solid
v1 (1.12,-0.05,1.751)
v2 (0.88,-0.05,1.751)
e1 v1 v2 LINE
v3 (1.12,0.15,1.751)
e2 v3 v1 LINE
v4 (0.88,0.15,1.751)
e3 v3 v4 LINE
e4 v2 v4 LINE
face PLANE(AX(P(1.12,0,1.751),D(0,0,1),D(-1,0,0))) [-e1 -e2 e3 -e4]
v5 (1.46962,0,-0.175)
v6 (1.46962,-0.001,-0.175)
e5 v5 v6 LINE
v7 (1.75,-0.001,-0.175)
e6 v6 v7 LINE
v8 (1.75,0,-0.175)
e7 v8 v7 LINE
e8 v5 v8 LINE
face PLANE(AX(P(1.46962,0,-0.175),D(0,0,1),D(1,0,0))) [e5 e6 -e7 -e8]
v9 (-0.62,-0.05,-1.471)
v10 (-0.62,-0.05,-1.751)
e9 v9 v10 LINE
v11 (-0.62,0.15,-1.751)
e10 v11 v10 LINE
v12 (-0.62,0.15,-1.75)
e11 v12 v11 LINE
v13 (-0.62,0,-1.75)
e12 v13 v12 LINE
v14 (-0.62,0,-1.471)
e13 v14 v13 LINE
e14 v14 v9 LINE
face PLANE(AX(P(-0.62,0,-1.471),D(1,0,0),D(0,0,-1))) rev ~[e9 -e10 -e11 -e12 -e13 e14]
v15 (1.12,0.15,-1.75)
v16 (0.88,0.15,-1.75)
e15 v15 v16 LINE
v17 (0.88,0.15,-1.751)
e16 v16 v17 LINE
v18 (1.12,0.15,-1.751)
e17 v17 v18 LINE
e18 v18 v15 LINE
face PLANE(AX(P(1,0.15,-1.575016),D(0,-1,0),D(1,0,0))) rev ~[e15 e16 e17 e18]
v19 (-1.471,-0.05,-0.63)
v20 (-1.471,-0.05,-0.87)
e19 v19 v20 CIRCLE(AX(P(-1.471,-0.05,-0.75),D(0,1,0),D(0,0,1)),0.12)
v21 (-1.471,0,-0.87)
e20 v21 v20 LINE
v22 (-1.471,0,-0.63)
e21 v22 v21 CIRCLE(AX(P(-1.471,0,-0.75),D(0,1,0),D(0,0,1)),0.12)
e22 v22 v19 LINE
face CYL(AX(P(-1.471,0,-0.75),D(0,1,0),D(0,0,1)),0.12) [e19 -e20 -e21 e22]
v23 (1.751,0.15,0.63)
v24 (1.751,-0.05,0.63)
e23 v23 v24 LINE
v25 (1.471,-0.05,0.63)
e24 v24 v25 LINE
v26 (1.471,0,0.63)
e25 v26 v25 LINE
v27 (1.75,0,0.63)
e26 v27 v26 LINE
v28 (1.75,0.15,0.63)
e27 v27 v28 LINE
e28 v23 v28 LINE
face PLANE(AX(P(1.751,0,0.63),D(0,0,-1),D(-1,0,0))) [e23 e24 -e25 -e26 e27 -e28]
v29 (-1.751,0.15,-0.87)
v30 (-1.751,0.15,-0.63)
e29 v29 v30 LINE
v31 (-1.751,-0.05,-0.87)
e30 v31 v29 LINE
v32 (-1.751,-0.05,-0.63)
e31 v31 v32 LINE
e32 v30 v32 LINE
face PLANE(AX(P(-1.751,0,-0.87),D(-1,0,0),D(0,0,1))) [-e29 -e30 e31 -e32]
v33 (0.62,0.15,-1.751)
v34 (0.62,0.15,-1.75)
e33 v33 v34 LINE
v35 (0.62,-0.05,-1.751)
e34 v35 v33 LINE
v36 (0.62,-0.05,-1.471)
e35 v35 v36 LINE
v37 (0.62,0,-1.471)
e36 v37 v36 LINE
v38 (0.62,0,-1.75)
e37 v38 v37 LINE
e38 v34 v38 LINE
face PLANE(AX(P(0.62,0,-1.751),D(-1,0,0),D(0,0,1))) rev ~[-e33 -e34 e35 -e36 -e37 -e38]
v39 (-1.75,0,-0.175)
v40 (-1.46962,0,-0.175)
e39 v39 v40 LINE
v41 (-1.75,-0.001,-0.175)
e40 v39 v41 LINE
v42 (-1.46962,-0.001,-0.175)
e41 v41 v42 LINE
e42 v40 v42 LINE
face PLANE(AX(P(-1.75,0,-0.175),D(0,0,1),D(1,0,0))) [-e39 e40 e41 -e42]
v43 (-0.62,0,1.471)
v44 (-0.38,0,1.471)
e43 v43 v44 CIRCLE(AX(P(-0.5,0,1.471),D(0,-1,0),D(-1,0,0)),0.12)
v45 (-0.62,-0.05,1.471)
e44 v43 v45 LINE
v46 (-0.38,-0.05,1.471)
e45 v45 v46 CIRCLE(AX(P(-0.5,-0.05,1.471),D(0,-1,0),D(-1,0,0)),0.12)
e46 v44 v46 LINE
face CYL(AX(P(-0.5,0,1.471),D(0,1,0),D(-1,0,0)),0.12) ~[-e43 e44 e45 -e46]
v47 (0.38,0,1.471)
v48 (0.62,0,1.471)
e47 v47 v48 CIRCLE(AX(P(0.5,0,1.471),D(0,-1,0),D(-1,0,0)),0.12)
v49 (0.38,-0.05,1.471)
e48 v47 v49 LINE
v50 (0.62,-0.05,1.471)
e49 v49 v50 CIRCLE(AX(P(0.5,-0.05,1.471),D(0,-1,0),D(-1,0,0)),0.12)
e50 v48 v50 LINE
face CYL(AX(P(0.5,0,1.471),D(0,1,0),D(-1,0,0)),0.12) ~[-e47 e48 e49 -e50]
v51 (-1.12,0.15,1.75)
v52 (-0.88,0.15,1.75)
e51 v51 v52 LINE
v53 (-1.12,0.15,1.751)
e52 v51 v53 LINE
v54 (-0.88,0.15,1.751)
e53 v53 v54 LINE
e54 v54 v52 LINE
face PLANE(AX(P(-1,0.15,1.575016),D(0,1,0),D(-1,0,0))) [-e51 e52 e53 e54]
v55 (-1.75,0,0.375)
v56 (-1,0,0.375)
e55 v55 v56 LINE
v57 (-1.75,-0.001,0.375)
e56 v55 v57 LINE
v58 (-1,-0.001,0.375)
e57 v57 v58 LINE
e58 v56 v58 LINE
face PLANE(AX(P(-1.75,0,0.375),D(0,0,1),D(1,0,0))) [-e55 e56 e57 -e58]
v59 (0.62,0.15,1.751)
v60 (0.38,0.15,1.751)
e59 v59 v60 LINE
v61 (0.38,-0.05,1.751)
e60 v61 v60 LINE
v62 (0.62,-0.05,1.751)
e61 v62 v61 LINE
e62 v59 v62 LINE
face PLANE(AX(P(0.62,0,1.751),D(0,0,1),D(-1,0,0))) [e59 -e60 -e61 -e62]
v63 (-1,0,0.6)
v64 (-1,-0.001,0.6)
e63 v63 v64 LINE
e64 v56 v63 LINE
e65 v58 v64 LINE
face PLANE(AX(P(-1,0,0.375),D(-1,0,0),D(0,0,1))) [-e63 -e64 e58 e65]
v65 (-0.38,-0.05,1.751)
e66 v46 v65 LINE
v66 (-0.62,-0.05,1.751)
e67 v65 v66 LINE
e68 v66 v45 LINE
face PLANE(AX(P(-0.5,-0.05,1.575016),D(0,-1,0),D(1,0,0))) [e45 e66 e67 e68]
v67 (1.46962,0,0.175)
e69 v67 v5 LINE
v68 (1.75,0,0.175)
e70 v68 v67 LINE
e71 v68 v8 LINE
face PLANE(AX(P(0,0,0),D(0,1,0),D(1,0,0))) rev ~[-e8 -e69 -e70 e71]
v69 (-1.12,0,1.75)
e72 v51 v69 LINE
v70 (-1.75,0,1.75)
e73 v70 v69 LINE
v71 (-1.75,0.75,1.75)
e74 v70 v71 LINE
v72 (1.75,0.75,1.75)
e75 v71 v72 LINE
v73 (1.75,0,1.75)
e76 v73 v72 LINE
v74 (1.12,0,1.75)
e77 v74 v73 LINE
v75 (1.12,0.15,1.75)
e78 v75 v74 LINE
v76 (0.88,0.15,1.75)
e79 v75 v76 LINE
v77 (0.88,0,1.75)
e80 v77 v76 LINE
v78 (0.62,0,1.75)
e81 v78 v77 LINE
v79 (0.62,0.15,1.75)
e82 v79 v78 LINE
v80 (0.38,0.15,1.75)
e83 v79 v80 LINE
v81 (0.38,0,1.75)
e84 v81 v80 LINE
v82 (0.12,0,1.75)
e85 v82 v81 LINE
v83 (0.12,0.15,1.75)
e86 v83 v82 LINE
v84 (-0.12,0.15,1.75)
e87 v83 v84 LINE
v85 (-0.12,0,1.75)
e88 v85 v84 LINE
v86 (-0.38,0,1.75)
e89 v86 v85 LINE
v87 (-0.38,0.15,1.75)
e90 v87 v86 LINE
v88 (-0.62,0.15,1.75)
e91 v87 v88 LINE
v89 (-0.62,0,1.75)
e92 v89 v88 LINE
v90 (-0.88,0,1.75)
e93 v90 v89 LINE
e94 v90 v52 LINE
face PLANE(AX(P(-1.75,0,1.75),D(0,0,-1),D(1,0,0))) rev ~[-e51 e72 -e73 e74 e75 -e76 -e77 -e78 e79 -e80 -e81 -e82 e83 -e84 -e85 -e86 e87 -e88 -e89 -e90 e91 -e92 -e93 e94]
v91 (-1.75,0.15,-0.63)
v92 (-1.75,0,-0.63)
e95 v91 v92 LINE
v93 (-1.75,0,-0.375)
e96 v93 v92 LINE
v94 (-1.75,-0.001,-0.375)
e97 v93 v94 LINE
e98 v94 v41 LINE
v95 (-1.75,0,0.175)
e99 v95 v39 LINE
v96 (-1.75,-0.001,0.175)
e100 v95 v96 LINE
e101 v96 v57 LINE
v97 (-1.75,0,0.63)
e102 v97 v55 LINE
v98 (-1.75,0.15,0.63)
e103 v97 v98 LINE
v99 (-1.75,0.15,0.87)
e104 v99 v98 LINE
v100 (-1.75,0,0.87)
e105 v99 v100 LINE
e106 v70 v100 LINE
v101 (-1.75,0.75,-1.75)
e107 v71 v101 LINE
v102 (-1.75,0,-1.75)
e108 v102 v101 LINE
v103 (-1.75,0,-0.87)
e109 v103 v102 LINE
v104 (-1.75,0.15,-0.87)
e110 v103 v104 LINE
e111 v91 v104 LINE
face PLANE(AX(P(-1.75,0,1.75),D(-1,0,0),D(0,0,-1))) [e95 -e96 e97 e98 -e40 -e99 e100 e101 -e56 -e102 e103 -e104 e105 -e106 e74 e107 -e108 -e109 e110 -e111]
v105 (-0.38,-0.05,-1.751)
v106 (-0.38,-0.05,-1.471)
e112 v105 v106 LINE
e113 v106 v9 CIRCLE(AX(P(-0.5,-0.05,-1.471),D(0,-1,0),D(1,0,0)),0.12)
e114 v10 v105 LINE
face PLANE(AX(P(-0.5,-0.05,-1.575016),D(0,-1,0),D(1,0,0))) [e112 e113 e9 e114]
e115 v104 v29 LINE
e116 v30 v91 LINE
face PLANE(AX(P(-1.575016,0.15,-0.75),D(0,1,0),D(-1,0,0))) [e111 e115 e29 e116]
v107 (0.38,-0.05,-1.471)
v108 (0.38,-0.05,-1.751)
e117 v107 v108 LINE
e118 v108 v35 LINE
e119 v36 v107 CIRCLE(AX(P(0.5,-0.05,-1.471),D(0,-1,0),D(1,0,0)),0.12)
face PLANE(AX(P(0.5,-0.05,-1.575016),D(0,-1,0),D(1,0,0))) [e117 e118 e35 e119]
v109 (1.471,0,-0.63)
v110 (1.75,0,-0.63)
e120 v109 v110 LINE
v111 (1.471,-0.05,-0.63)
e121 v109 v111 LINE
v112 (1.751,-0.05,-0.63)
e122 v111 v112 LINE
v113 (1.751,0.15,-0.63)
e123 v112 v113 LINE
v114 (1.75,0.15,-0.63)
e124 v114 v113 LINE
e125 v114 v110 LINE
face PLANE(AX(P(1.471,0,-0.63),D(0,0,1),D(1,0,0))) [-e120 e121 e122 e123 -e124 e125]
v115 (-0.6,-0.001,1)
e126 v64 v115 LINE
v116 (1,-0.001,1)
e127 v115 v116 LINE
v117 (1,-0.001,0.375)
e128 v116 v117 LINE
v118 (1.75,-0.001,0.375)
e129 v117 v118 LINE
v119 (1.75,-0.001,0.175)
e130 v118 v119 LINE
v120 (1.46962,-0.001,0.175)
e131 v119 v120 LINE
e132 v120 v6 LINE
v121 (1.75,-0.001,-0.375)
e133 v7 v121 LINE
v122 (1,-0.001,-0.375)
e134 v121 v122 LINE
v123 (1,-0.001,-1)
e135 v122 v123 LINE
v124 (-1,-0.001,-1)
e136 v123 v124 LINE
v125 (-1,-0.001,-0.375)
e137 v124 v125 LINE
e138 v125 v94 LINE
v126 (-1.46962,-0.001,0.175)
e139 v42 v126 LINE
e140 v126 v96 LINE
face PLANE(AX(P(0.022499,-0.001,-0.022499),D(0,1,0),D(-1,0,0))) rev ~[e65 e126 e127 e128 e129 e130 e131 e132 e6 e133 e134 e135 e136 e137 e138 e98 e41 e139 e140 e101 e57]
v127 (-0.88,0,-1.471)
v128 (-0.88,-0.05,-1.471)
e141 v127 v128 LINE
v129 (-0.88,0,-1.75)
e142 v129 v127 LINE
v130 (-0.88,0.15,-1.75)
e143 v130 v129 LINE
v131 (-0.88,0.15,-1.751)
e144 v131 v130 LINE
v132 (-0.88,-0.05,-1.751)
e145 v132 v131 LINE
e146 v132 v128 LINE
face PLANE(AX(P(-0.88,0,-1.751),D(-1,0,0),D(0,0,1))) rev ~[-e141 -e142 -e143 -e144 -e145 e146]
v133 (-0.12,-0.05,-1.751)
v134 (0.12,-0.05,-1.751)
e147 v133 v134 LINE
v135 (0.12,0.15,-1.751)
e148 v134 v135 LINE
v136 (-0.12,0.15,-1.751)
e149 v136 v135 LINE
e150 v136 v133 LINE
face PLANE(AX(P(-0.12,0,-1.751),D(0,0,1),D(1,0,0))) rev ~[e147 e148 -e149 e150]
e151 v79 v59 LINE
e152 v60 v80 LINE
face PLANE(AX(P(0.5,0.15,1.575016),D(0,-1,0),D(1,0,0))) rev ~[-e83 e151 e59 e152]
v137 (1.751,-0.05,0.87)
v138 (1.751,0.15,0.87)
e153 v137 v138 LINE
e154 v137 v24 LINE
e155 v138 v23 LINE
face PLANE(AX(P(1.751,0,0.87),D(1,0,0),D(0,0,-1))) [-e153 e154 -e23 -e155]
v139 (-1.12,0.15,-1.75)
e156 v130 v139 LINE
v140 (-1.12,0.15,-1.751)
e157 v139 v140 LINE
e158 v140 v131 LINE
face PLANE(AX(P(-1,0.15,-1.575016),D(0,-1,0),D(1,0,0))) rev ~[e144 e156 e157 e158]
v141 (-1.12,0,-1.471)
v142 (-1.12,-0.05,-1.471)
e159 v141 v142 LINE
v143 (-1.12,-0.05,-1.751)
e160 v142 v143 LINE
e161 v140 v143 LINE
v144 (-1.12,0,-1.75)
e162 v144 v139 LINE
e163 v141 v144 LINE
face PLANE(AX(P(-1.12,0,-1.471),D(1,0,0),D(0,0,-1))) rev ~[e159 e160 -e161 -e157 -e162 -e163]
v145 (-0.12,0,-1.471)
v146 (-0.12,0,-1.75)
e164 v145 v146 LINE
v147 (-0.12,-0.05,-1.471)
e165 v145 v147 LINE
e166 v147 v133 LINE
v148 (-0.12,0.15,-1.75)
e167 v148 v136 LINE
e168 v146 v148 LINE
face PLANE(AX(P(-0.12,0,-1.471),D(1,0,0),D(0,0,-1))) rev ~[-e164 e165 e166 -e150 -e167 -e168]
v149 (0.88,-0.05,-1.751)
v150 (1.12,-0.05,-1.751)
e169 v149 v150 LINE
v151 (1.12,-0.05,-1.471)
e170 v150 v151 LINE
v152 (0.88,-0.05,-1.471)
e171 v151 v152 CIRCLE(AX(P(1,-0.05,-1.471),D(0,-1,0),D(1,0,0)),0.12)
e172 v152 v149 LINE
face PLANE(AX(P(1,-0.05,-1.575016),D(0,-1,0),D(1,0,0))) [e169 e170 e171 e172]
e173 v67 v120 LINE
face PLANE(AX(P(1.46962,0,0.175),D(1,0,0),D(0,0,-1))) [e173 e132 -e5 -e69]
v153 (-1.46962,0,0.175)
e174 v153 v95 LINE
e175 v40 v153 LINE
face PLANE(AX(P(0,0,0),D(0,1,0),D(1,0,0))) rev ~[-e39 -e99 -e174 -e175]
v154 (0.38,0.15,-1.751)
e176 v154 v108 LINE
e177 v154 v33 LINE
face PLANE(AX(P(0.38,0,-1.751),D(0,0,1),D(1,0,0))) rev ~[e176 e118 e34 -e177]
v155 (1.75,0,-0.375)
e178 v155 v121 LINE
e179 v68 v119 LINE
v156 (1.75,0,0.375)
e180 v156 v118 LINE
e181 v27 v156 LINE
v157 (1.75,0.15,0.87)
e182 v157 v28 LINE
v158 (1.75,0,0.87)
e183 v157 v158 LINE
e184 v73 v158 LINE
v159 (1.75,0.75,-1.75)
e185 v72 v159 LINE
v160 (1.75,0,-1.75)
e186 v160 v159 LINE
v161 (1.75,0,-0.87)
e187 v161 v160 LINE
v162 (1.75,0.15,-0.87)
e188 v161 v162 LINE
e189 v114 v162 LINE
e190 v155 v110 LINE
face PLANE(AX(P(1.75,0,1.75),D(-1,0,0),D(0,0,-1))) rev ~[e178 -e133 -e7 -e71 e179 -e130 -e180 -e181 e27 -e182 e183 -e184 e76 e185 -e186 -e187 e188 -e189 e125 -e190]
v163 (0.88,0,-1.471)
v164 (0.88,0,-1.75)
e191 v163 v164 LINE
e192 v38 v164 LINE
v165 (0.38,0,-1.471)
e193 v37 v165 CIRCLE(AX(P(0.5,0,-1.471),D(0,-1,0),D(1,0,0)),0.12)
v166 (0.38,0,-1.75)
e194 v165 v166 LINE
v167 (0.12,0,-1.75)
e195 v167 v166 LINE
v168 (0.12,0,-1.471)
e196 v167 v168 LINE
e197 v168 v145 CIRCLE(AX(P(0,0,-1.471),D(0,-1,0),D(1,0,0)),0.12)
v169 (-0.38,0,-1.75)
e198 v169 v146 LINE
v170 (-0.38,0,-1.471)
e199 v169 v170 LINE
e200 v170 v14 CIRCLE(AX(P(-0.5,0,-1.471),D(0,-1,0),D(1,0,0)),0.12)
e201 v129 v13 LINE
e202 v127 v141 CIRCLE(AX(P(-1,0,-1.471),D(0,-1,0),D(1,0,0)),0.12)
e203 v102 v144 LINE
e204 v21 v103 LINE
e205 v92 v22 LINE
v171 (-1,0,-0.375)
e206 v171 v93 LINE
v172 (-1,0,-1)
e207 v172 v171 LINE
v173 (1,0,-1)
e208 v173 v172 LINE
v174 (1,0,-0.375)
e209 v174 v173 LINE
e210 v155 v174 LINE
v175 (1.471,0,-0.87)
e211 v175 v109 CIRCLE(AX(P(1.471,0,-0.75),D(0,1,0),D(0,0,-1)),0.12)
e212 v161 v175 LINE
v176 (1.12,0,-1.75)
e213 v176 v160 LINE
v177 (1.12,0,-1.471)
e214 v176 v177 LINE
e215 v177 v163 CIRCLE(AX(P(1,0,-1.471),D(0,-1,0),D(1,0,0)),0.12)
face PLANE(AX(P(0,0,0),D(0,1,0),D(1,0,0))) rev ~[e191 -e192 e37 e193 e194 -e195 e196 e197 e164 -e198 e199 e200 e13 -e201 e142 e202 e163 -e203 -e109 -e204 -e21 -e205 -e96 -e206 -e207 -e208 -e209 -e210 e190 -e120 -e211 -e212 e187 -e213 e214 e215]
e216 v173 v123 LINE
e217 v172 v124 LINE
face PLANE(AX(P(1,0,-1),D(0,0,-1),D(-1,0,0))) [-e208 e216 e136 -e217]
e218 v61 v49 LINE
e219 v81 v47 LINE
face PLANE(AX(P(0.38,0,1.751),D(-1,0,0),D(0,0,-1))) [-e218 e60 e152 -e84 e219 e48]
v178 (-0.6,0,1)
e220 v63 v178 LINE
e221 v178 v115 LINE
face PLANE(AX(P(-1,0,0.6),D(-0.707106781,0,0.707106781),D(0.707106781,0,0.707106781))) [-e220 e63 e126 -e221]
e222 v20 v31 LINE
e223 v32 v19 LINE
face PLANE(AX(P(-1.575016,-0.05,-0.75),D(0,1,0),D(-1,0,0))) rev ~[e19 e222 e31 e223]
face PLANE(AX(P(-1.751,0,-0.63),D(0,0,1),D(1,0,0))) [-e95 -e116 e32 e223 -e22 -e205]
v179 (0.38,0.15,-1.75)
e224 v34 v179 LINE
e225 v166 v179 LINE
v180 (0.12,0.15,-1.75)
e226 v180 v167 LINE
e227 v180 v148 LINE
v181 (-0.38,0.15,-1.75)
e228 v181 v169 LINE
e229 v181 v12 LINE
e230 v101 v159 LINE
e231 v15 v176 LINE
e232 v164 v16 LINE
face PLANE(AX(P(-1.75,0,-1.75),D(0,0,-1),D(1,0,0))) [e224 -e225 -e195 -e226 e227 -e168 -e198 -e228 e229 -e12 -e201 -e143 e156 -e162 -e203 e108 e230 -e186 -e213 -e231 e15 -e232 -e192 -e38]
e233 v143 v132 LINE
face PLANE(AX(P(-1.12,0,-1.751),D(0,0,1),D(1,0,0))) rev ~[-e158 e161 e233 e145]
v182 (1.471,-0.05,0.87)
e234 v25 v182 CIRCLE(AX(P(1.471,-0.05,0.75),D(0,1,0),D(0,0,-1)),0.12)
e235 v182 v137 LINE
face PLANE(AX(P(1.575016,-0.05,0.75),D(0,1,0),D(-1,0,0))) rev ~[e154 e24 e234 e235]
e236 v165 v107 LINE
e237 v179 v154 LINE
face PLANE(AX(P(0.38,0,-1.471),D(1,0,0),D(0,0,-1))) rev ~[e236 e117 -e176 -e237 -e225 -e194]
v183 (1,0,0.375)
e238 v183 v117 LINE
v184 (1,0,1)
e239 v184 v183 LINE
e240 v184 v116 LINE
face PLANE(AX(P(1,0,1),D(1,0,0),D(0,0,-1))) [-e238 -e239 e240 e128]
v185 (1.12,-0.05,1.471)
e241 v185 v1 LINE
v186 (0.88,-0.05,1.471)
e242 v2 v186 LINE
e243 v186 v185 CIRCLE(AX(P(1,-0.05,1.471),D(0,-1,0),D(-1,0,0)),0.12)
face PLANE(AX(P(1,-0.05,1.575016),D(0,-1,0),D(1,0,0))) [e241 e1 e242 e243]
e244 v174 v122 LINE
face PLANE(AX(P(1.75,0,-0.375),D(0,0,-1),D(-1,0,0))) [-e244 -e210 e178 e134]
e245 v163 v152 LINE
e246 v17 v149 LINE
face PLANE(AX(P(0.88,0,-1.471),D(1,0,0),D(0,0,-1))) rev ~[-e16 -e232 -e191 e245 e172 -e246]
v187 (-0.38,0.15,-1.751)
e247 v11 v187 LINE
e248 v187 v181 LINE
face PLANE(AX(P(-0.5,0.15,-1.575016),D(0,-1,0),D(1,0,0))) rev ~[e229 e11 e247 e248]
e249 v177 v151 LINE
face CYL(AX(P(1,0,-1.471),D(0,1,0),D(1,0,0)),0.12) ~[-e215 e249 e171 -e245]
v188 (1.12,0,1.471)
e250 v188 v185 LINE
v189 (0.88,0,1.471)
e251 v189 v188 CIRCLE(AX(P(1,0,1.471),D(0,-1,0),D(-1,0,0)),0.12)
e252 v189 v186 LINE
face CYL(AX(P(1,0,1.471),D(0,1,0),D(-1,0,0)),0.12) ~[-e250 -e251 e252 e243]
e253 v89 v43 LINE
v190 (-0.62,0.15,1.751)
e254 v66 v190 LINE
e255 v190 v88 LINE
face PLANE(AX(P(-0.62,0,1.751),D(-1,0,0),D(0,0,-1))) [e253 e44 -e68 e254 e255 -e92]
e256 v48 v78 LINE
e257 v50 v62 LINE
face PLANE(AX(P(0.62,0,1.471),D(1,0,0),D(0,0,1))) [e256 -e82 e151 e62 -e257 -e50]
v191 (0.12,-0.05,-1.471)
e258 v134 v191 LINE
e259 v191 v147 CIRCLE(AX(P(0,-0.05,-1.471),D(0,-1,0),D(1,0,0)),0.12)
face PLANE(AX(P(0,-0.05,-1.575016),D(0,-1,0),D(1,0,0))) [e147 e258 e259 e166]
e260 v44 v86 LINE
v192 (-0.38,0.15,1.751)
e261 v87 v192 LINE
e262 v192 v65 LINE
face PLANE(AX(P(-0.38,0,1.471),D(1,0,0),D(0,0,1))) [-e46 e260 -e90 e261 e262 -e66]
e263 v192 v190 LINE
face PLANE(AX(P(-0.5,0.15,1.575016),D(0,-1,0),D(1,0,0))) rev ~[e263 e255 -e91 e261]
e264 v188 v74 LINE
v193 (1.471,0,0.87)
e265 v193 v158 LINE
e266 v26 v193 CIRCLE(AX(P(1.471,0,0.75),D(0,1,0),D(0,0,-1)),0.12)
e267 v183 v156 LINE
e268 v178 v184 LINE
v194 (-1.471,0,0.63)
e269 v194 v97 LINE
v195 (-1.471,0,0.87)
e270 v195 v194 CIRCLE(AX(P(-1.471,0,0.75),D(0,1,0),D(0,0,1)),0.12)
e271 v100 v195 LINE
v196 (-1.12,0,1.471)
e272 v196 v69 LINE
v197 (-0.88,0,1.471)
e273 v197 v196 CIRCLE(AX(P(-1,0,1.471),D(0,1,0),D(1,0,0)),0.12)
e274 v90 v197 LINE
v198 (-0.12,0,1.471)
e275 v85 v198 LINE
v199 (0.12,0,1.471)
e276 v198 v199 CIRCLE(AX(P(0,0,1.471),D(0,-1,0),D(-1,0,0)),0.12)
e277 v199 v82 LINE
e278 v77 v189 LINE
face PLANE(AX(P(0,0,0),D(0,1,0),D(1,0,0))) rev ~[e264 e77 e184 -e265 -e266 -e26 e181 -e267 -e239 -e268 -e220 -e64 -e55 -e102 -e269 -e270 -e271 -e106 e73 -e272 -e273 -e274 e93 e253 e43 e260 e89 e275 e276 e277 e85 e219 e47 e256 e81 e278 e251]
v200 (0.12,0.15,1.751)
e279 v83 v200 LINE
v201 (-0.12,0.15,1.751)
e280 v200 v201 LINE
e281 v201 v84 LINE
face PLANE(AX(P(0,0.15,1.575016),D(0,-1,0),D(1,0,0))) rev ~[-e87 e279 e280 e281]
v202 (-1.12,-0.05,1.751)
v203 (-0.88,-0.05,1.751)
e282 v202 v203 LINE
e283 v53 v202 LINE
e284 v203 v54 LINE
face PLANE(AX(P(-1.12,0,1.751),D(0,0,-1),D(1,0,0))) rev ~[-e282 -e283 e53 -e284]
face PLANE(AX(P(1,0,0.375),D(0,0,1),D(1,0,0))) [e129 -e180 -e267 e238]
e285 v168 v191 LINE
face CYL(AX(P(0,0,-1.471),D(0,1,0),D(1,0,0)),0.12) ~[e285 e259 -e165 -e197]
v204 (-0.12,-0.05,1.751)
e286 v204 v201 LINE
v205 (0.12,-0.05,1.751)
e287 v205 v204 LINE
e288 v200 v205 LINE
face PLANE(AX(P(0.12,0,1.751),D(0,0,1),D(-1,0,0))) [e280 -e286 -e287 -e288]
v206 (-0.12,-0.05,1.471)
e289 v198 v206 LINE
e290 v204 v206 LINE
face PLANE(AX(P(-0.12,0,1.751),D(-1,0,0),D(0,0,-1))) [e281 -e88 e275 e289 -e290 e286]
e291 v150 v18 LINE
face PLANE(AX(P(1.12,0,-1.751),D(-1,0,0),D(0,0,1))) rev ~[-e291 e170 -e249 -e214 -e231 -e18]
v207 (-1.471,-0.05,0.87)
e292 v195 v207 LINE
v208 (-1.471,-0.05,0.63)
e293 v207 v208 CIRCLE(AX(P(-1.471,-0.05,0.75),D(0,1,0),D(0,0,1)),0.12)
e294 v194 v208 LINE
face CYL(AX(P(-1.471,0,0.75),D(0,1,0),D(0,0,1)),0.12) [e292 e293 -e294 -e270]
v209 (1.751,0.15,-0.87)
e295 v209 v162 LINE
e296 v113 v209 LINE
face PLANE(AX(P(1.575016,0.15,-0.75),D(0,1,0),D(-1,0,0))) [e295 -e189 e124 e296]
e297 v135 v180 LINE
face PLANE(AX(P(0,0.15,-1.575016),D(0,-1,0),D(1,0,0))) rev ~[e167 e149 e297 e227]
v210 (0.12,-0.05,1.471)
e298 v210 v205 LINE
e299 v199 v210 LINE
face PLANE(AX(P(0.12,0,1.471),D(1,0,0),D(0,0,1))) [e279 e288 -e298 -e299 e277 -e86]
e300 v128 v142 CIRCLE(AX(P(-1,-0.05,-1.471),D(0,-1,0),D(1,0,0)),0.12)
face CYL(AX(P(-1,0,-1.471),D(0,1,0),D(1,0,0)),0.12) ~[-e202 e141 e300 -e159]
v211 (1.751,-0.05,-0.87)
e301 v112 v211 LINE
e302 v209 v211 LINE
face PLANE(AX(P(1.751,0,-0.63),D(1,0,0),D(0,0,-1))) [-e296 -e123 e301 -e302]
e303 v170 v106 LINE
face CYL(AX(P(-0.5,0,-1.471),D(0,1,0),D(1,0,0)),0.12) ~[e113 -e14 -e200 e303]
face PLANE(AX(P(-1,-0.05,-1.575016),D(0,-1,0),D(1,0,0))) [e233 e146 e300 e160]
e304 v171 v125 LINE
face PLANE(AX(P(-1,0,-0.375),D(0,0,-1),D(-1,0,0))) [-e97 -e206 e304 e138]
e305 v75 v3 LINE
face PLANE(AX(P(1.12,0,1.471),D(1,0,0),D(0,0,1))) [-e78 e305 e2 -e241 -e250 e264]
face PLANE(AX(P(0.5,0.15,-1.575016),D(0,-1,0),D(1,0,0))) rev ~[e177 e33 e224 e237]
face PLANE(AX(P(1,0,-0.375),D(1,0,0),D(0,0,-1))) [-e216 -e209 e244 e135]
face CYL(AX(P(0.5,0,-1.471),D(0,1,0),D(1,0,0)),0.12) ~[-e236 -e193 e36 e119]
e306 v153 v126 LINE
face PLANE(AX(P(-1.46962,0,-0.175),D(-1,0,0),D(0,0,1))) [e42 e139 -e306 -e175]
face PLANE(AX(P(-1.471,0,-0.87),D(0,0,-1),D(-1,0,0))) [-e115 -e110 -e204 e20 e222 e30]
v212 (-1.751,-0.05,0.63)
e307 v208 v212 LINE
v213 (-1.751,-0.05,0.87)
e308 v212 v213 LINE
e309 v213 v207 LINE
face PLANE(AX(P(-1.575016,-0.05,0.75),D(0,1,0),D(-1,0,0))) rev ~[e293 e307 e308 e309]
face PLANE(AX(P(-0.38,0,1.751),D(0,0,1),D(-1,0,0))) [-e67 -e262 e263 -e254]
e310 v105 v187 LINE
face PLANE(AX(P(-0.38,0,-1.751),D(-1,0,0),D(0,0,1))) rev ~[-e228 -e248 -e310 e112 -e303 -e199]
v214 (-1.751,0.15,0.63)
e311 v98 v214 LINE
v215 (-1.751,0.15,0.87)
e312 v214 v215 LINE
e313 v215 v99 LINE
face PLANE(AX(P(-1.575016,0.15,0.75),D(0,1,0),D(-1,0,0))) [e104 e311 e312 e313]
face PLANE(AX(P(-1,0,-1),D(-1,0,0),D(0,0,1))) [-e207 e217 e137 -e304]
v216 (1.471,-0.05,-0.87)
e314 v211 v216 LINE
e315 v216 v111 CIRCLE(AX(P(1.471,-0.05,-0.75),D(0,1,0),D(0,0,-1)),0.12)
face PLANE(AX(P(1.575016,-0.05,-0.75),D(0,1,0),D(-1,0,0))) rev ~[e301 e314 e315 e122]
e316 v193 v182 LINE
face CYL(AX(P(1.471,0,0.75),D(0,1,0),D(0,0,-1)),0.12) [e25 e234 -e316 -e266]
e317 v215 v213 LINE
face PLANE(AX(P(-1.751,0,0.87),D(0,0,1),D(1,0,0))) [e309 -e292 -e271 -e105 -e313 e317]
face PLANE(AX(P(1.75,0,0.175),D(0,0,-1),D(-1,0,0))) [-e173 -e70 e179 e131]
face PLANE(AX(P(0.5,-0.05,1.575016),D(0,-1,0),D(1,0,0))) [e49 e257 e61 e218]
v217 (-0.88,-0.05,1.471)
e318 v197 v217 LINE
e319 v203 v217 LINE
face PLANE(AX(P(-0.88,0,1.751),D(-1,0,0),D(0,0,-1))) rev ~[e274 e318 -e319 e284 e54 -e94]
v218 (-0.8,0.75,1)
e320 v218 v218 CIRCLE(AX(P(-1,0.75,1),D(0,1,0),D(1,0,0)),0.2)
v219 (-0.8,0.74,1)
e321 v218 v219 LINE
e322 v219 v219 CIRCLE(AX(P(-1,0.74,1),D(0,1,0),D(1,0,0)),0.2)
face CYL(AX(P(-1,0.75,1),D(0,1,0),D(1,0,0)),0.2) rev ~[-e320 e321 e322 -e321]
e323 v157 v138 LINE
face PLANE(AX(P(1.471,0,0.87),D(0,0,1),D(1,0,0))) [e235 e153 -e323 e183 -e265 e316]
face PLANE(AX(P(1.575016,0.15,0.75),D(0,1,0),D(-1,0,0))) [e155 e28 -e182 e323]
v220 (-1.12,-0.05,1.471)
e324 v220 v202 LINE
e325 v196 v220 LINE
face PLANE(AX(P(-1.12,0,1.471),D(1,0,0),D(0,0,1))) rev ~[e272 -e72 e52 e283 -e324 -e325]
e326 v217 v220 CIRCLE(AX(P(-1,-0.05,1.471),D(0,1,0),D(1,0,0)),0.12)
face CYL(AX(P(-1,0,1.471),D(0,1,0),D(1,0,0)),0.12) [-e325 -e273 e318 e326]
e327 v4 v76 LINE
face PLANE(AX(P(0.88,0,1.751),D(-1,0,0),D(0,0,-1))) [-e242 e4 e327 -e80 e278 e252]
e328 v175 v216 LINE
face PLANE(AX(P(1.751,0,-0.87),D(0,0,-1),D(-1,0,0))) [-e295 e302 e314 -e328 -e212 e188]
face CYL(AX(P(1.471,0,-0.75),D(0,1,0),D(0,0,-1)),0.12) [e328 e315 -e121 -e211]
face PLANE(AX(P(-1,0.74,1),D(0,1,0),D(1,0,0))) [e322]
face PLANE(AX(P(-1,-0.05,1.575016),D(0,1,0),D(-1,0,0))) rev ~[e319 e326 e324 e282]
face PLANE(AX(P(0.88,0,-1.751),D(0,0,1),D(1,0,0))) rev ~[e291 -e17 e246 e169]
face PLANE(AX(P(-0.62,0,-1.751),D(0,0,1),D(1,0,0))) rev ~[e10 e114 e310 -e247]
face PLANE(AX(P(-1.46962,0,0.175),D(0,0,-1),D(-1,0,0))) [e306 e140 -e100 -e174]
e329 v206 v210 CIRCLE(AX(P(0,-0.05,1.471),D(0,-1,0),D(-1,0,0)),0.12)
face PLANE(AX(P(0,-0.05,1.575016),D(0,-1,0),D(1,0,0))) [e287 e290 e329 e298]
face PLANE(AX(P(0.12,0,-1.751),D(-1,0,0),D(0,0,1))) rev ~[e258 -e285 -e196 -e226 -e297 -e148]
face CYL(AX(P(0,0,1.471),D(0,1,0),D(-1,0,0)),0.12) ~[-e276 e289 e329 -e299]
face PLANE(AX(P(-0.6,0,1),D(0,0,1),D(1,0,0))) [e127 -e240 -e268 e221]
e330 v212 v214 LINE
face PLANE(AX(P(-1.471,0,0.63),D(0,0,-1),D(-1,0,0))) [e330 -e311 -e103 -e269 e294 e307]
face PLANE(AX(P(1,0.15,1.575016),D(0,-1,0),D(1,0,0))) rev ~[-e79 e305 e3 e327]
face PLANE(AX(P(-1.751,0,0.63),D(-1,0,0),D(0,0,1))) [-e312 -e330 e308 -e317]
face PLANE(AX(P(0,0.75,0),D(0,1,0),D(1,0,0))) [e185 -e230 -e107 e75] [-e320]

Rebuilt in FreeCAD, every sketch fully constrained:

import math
import FreeCAD as App
import Part
import Sketcher
Q = App.Units.Quantity

doc = App.newDocument("Part")
body = doc.addObject("PartDesign::Body", "Body")

# Sketch on XZ plane
sketch1 = doc.addObject("Sketcher::SketchObject", "Sketch")
body.addObject(sketch1)
sketch1.AttachmentSupport = (doc.XZ_Plane, [""])
sketch1.MapMode = "FlatFace"
sketch1.addGeometry(Part.LineSegment(App.Vector(-1.75, -1.75, 0), App.Vector(-1.75, 1.75, 0)), False)
sketch1.addGeometry(Part.LineSegment(App.Vector(-1.75, 1.75, 0), App.Vector(1.75, 1.75, 0)), False)
sketch1.addGeometry(Part.LineSegment(App.Vector(1.75, 1.75, 0), App.Vector(1.75, -1.75, 0)), False)
sketch1.addGeometry(Part.LineSegment(App.Vector(1.75, -1.75, 0), App.Vector(-1.75, -1.75, 0)), False)
sketch1.addConstraint(Sketcher.Constraint("Coincident", 0, 2, 1, 1))
sketch1.addConstraint(Sketcher.Constraint("Coincident", 1, 2, 2, 1))
sketch1.addConstraint(Sketcher.Constraint("Coincident", 2, 2, 3, 1))
sketch1.addConstraint(Sketcher.Constraint("Coincident", 3, 2, 0, 1))
sketch1.addConstraint(Sketcher.Constraint("Vertical", 0))
sketch1.addConstraint(Sketcher.Constraint("Horizontal", 1))
sketch1.addConstraint(Sketcher.Constraint("Vertical", 2))
sketch1.addConstraint(Sketcher.Constraint("Horizontal", 3))
sketch1.addConstraint(Sketcher.Constraint("Symmetric", 0, 2, 2, 2, -1, 1))
sketch1.addConstraint(Sketcher.Constraint("Equal", 3, 0))
sketch1.addConstraint(Sketcher.Constraint("DistanceX", 1, 1, 1, 2, Q("3.5 mm")))
pad1 = doc.addObject("PartDesign::Pad", "Pad")
body.addObject(pad1)
pad1.Profile = sketch1
pad1.Length = 0.75
pad1.Reversed = True

# Sketch on XZ plane
sketch2 = doc.addObject("Sketcher::SketchObject", "Sketch001")
body.addObject(sketch2)
sketch2.AttachmentSupport = (doc.XZ_Plane, [""])
sketch2.MapMode = "FlatFace"
sketch2.AttachmentOffset = App.Placement(App.Vector(0, 0, -0.75), App.Rotation())
sketch2.addGeometry(Part.Circle(App.Vector(-1, 1, 0), App.Vector(0, 0, 1), 0.2), False)
sketch2.addConstraint(Sketcher.Constraint("Diameter", 0, Q("0.4 mm")))
sketch2.addConstraint(Sketcher.Constraint("DistanceX", 0, 3, -1, 1, Q("1 mm")))
sketch2.addConstraint(Sketcher.Constraint("DistanceY", -1, 1, 0, 3, Q("1 mm")))
pocket1 = doc.addObject("PartDesign::Pocket", "Pocket")
body.addObject(pocket1)
pocket1.Profile = sketch2
pocket1.Length = 0.01
pocket1.Reversed = True

# Sketch on XZ plane
sketch3 = doc.addObject("Sketcher::SketchObject", "Sketch002")
body.addObject(sketch3)
sketch3.AttachmentSupport = (doc.XZ_Plane, [""])
sketch3.MapMode = "FlatFace"
sketch3.addGeometry(Part.LineSegment(App.Vector(-0.88, 1.751, 0), App.Vector(-1.12, 1.751, 0)), False)
sketch3.addGeometry(Part.LineSegment(App.Vector(-1.12, 1.751, 0), App.Vector(-1.12, 1.471, 0)), False)
sketch3.addGeometry(Part.ArcOfCircle(Part.Circle(App.Vector(-1, 1.471, 0), App.Vector(0, 0, 1), 0.12), math.radians(180), math.radians(360)), False)
sketch3.addGeometry(Part.LineSegment(App.Vector(-0.88, 1.471, 0), App.Vector(-0.88, 1.751, 0)), False)
sketch3.addGeometry(Part.LineSegment(App.Vector(-1.751, 0.87, 0), App.Vector(-1.751, 0.63, 0)), False)
sketch3.addGeometry(Part.LineSegment(App.Vector(-1.751, 0.63, 0), App.Vector(-1.471, 0.63, 0)), False)
sketch3.addGeometry(Part.ArcOfCircle(Part.Circle(App.Vector(-1.471, 0.75, 0), App.Vector(0, 0, 1), 0.12), math.radians(-90), math.radians(90)), False)
sketch3.addGeometry(Part.LineSegment(App.Vector(-1.471, 0.87, 0), App.Vector(-1.751, 0.87, 0)), False)
sketch3.addGeometry(Part.LineSegment(App.Vector(-0.62, 1.751, 0), App.Vector(-0.62, 1.471, 0)), False)
sketch3.addGeometry(Part.ArcOfCircle(Part.Circle(App.Vector(-0.5, 1.471, 0), App.Vector(0, 0, 1), 0.12), math.radians(180), math.radians(360)), False)
sketch3.addGeometry(Part.LineSegment(App.Vector(-0.38, 1.471, 0), App.Vector(-0.38, 1.751, 0)), False)
sketch3.addGeometry(Part.LineSegment(App.Vector(-0.38, 1.751, 0), App.Vector(-0.62, 1.751, 0)), False)
sketch3.addGeometry(Part.LineSegment(App.Vector(-0.12, 1.751, 0), App.Vector(-0.12, 1.471, 0)), False)
sketch3.addGeometry(Part.ArcOfCircle(Part.Circle(App.Vector(0, 1.471, 0), App.Vector(0, 0, 1), 0.12), math.radians(180), math.radians(360)), False)
sketch3.addGeometry(Part.LineSegment(App.Vector(0.12, 1.471, 0), App.Vector(0.12, 1.751, 0)), False)
sketch3.addGeometry(Part.LineSegment(App.Vector(0.12, 1.751, 0), App.Vector(-0.12, 1.751, 0)), False)
sketch3.addGeometry(Part.LineSegment(App.Vector(0.38, 1.751, 0), App.Vector(0.38, 1.471, 0)), False)
sketch3.addGeometry(Part.ArcOfCircle(Part.Circle(App.Vector(0.5, 1.471, 0), App.Vector(0, 0, 1), 0.12), math.radians(180), math.radians(360)), False)
sketch3.addGeometry(Part.LineSegment(App.Vector(0.62, 1.471, 0), App.Vector(0.62, 1.751, 0)), False)
sketch3.addGeometry(Part.LineSegment(App.Vector(0.62, 1.751, 0), App.Vector(0.38, 1.751, 0)), False)
sketch3.addGeometry(Part.LineSegment(App.Vector(0.88, 1.751, 0), App.Vector(0.88, 1.471, 0)), False)
sketch3.addGeometry(Part.ArcOfCircle(Part.Circle(App.Vector(1, 1.471, 0), App.Vector(0, 0, 1), 0.12), math.radians(180), math.radians(360)), False)
sketch3.addGeometry(Part.LineSegment(App.Vector(1.12, 1.471, 0), App.Vector(1.12, 1.751, 0)), False)
sketch3.addGeometry(Part.LineSegment(App.Vector(1.12, 1.751, 0), App.Vector(0.88, 1.751, 0)), False)
sketch3.addGeometry(Part.LineSegment(App.Vector(1.751, -0.87, 0), App.Vector(1.751, -0.63, 0)), False)
sketch3.addGeometry(Part.LineSegment(App.Vector(1.751, -0.63, 0), App.Vector(1.471, -0.63, 0)), False)
sketch3.addGeometry(Part.ArcOfCircle(Part.Circle(App.Vector(1.471, -0.75, 0), App.Vector(0, 0, 1), 0.12), math.radians(90), math.radians(270)), False)
sketch3.addGeometry(Part.LineSegment(App.Vector(1.471, -0.87, 0), App.Vector(1.751, -0.87, 0)), False)
sketch3.addGeometry(Part.LineSegment(App.Vector(0.88, -1.751, 0), App.Vector(1.12, -1.751, 0)), False)
sketch3.addGeometry(Part.LineSegment(App.Vector(1.12, -1.751, 0), App.Vector(1.12, -1.471, 0)), False)
sketch3.addGeometry(Part.ArcOfCircle(Part.Circle(App.Vector(1, -1.471, 0), App.Vector(0, 0, 1), 0.12), math.radians(0), math.radians(180)), False)
sketch3.addGeometry(Part.LineSegment(App.Vector(0.88, -1.471, 0), App.Vector(0.88, -1.751, 0)), False)
sketch3.addGeometry(Part.LineSegment(App.Vector(0.38, -1.751, 0), App.Vector(0.62, -1.751, 0)), False)
sketch3.addGeometry(Part.LineSegment(App.Vector(0.62, -1.751, 0), App.Vector(0.62, -1.471, 0)), False)
sketch3.addGeometry(Part.ArcOfCircle(Part.Circle(App.Vector(0.5, -1.471, 0), App.Vector(0, 0, 1), 0.12), math.radians(0), math.radians(180)), False)
sketch3.addGeometry(Part.LineSegment(App.Vector(0.38, -1.471, 0), App.Vector(0.38, -1.751, 0)), False)
sketch3.addGeometry(Part.LineSegment(App.Vector(-0.12, -1.751, 0), App.Vector(0.12, -1.751, 0)), False)
sketch3.addGeometry(Part.LineSegment(App.Vector(0.12, -1.751, 0), App.Vector(0.12, -1.471, 0)), False)
sketch3.addGeometry(Part.ArcOfCircle(Part.Circle(App.Vector(0, -1.471, 0), App.Vector(0, 0, 1), 0.12), math.radians(0), math.radians(180)), False)
sketch3.addGeometry(Part.LineSegment(App.Vector(-0.12, -1.471, 0), App.Vector(-0.12, -1.751, 0)), False)
sketch3.addGeometry(Part.LineSegment(App.Vector(-0.62, -1.751, 0), App.Vector(-0.38, -1.751, 0)), False)
sketch3.addGeometry(Part.LineSegment(App.Vector(-0.38, -1.751, 0), App.Vector(-0.38, -1.471, 0)), False)
sketch3.addGeometry(Part.ArcOfCircle(Part.Circle(App.Vector(-0.5, -1.471, 0), App.Vector(0, 0, 1), 0.12), math.radians(0), math.radians(180)), False)
sketch3.addGeometry(Part.LineSegment(App.Vector(-0.62, -1.471, 0), App.Vector(-0.62, -1.751, 0)), False)
sketch3.addGeometry(Part.LineSegment(App.Vector(-1.471, -0.63, 0), App.Vector(-1.751, -0.63, 0)), False)
sketch3.addGeometry(Part.LineSegment(App.Vector(-1.751, -0.63, 0), App.Vector(-1.751, -0.87, 0)), False)
sketch3.addGeometry(Part.LineSegment(App.Vector(-1.751, -0.87, 0), App.Vector(-1.471, -0.87, 0)), False)
sketch3.addGeometry(Part.ArcOfCircle(Part.Circle(App.Vector(-1.471, -0.75, 0), App.Vector(0, 0, 1), 0.12), math.radians(-90), math.radians(90)), False)
sketch3.addGeometry(Part.LineSegment(App.Vector(-0.88, -1.751, 0), App.Vector(-0.88, -1.471, 0)), False)
sketch3.addGeometry(Part.ArcOfCircle(Part.Circle(App.Vector(-1, -1.471, 0), App.Vector(0, 0, 1), 0.12), math.radians(0), math.radians(180)), False)
sketch3.addGeometry(Part.LineSegment(App.Vector(-1.12, -1.471, 0), App.Vector(-1.12, -1.751, 0)), False)
sketch3.addGeometry(Part.LineSegment(App.Vector(-1.12, -1.751, 0), App.Vector(-0.88, -1.751, 0)), False)
sketch3.addGeometry(Part.LineSegment(App.Vector(1.471, 0.63, 0), App.Vector(1.751, 0.63, 0)), False)
sketch3.addGeometry(Part.LineSegment(App.Vector(1.751, 0.63, 0), App.Vector(1.751, 0.87, 0)), False)
sketch3.addGeometry(Part.LineSegment(App.Vector(1.751, 0.87, 0), App.Vector(1.471, 0.87, 0)), False)
sketch3.addGeometry(Part.ArcOfCircle(Part.Circle(App.Vector(1.471, 0.75, 0), App.Vector(0, 0, 1), 0.12), math.radians(90), math.radians(270)), False)
sketch3.addConstraint(Sketcher.Constraint("Coincident", 0, 2, 1, 1))
sketch3.addConstraint(Sketcher.Constraint("Tangent", 1, 2, 2, 1))
sketch3.addConstraint(Sketcher.Constraint("Tangent", 2, 2, 3, 1))
sketch3.addConstraint(Sketcher.Constraint("Coincident", 3, 2, 0, 1))
sketch3.addConstraint(Sketcher.Constraint("Coincident", 4, 2, 5, 1))
sketch3.addConstraint(Sketcher.Constraint("Tangent", 5, 2, 6, 1))
sketch3.addConstraint(Sketcher.Constraint("Tangent", 6, 2, 7, 1))
sketch3.addConstraint(Sketcher.Constraint("Coincident", 7, 2, 4, 1))
sketch3.addConstraint(Sketcher.Constraint("Tangent", 8, 2, 9, 1))
sketch3.addConstraint(Sketcher.Constraint("Tangent", 9, 2, 10, 1))
sketch3.addConstraint(Sketcher.Constraint("Coincident", 10, 2, 11, 1))
sketch3.addConstraint(Sketcher.Constraint("Coincident", 11, 2, 8, 1))
sketch3.addConstraint(Sketcher.Constraint("Tangent", 12, 2, 13, 1))
sketch3.addConstraint(Sketcher.Constraint("Tangent", 13, 2, 14, 1))
sketch3.addConstraint(Sketcher.Constraint("Coincident", 14, 2, 15, 1))
sketch3.addConstraint(Sketcher.Constraint("Coincident", 15, 2, 12, 1))
sketch3.addConstraint(Sketcher.Constraint("Tangent", 16, 2, 17, 1))
sketch3.addConstraint(Sketcher.Constraint("Tangent", 17, 2, 18, 1))
sketch3.addConstraint(Sketcher.Constraint("Coincident", 18, 2, 19, 1))
sketch3.addConstraint(Sketcher.Constraint("Coincident", 19, 2, 16, 1))
sketch3.addConstraint(Sketcher.Constraint("Tangent", 20, 2, 21, 1))
sketch3.addConstraint(Sketcher.Constraint("Tangent", 21, 2, 22, 1))
sketch3.addConstraint(Sketcher.Constraint("Coincident", 22, 2, 23, 1))
sketch3.addConstraint(Sketcher.Constraint("Coincident", 23, 2, 20, 1))
sketch3.addConstraint(Sketcher.Constraint("Coincident", 24, 2, 25, 1))
sketch3.addConstraint(Sketcher.Constraint("Tangent", 25, 2, 26, 1))
sketch3.addConstraint(Sketcher.Constraint("Tangent", 26, 2, 27, 1))
sketch3.addConstraint(Sketcher.Constraint("Coincident", 27, 2, 24, 1))
sketch3.addConstraint(Sketcher.Constraint("Coincident", 28, 2, 29, 1))
sketch3.addConstraint(Sketcher.Constraint("Tangent", 29, 2, 30, 1))
sketch3.addConstraint(Sketcher.Constraint("Tangent", 30, 2, 31, 1))
sketch3.addConstraint(Sketcher.Constraint("Coincident", 31, 2, 28, 1))
sketch3.addConstraint(Sketcher.Constraint("Coincident", 32, 2, 33, 1))
sketch3.addConstraint(Sketcher.Constraint("Tangent", 33, 2, 34, 1))
sketch3.addConstraint(Sketcher.Constraint("Tangent", 34, 2, 35, 1))
sketch3.addConstraint(Sketcher.Constraint("Coincident", 35, 2, 32, 1))
sketch3.addConstraint(Sketcher.Constraint("Coincident", 36, 2, 37, 1))
sketch3.addConstraint(Sketcher.Constraint("Tangent", 37, 2, 38, 1))
sketch3.addConstraint(Sketcher.Constraint("Tangent", 38, 2, 39, 1))
sketch3.addConstraint(Sketcher.Constraint("Coincident", 39, 2, 36, 1))
sketch3.addConstraint(Sketcher.Constraint("Coincident", 40, 2, 41, 1))
sketch3.addConstraint(Sketcher.Constraint("Tangent", 41, 2, 42, 1))
sketch3.addConstraint(Sketcher.Constraint("Tangent", 42, 2, 43, 1))
sketch3.addConstraint(Sketcher.Constraint("Coincident", 43, 2, 40, 1))
sketch3.addConstraint(Sketcher.Constraint("Coincident", 44, 2, 45, 1))
sketch3.addConstraint(Sketcher.Constraint("Coincident", 45, 2, 46, 1))
sketch3.addConstraint(Sketcher.Constraint("Tangent", 46, 2, 47, 1))
sketch3.addConstraint(Sketcher.Constraint("Tangent", 47, 2, 44, 1))
sketch3.addConstraint(Sketcher.Constraint("Tangent", 48, 2, 49, 1))
sketch3.addConstraint(Sketcher.Constraint("Tangent", 49, 2, 50, 1))
sketch3.addConstraint(Sketcher.Constraint("Coincident", 50, 2, 51, 1))
sketch3.addConstraint(Sketcher.Constraint("Coincident", 51, 2, 48, 1))
sketch3.addConstraint(Sketcher.Constraint("Coincident", 52, 2, 53, 1))
sketch3.addConstraint(Sketcher.Constraint("Coincident", 53, 2, 54, 1))
sketch3.addConstraint(Sketcher.Constraint("Tangent", 54, 2, 55, 1))
sketch3.addConstraint(Sketcher.Constraint("Tangent", 55, 2, 52, 1))
sketch3.addConstraint(Sketcher.Constraint("Horizontal", 0))
sketch3.addConstraint(Sketcher.Constraint("Vertical", 1))
sketch3.addConstraint(Sketcher.Constraint("Vertical", 3))
sketch3.addConstraint(Sketcher.Constraint("Vertical", 4))
sketch3.addConstraint(Sketcher.Constraint("Horizontal", 5))
sketch3.addConstraint(Sketcher.Constraint("Horizontal", 7))
sketch3.addConstraint(Sketcher.Constraint("Vertical", 8))
sketch3.addConstraint(Sketcher.Constraint("Vertical", 10))
sketch3.addConstraint(Sketcher.Constraint("Horizontal", 11))
sketch3.addConstraint(Sketcher.Constraint("Vertical", 12))
sketch3.addConstraint(Sketcher.Constraint("Vertical", 14))
sketch3.addConstraint(Sketcher.Constraint("Horizontal", 15))
sketch3.addConstraint(Sketcher.Constraint("Vertical", 16))
sketch3.addConstraint(Sketcher.Constraint("Vertical", 18))
sketch3.addConstraint(Sketcher.Constraint("Horizontal", 19))
sketch3.addConstraint(Sketcher.Constraint("Vertical", 20))
sketch3.addConstraint(Sketcher.Constraint("Vertical", 22))
sketch3.addConstraint(Sketcher.Constraint("Horizontal", 23))
sketch3.addConstraint(Sketcher.Constraint("Vertical", 24))
sketch3.addConstraint(Sketcher.Constraint("Horizontal", 25))
sketch3.addConstraint(Sketcher.Constraint("Horizontal", 27))
sketch3.addConstraint(Sketcher.Constraint("Horizontal", 28))
sketch3.addConstraint(Sketcher.Constraint("Vertical", 29))
sketch3.addConstraint(Sketcher.Constraint("Vertical", 31))
sketch3.addConstraint(Sketcher.Constraint("Horizontal", 32))
sketch3.addConstraint(Sketcher.Constraint("Vertical", 33))
sketch3.addConstraint(Sketcher.Constraint("Vertical", 35))
sketch3.addConstraint(Sketcher.Constraint("Horizontal", 36))
sketch3.addConstraint(Sketcher.Constraint("Vertical", 37))
sketch3.addConstraint(Sketcher.Constraint("Vertical", 39))
sketch3.addConstraint(Sketcher.Constraint("Horizontal", 40))
sketch3.addConstraint(Sketcher.Constraint("Vertical", 41))
sketch3.addConstraint(Sketcher.Constraint("Vertical", 43))
sketch3.addConstraint(Sketcher.Constraint("Horizontal", 44))
sketch3.addConstraint(Sketcher.Constraint("Vertical", 45))
sketch3.addConstraint(Sketcher.Constraint("Horizontal", 46))
sketch3.addConstraint(Sketcher.Constraint("Vertical", 48))
sketch3.addConstraint(Sketcher.Constraint("Vertical", 50))
sketch3.addConstraint(Sketcher.Constraint("Horizontal", 51))
sketch3.addConstraint(Sketcher.Constraint("Horizontal", 52))
sketch3.addConstraint(Sketcher.Constraint("Vertical", 53))
sketch3.addConstraint(Sketcher.Constraint("Horizontal", 54))
sketch3.addConstraint(Sketcher.Constraint("Equal", 2, 6))
sketch3.addConstraint(Sketcher.Constraint("Equal", 6, 9))
sketch3.addConstraint(Sketcher.Constraint("Equal", 9, 13))
sketch3.addConstraint(Sketcher.Constraint("Equal", 13, 17))
sketch3.addConstraint(Sketcher.Constraint("Equal", 17, 21))
sketch3.addConstraint(Sketcher.Constraint("Equal", 21, 26))
sketch3.addConstraint(Sketcher.Constraint("Equal", 26, 30))
sketch3.addConstraint(Sketcher.Constraint("Equal", 30, 34))
sketch3.addConstraint(Sketcher.Constraint("Equal", 34, 38))
sketch3.addConstraint(Sketcher.Constraint("Equal", 38, 42))
sketch3.addConstraint(Sketcher.Constraint("Equal", 42, 47))
sketch3.addConstraint(Sketcher.Constraint("Equal", 47, 49))
sketch3.addConstraint(Sketcher.Constraint("Equal", 49, 55))
sketch3.addConstraint(Sketcher.Constraint("Symmetric", 6, 3, 26, 3, -1, 1))
sketch3.addConstraint(Sketcher.Constraint("Symmetric", 2, 3, 30, 3, -1, 1))
sketch3.addConstraint(Sketcher.Constraint("Symmetric", 9, 3, 34, 3, -1, 1))
sketch3.addConstraint(Sketcher.Constraint("Symmetric", 13, 3, 38, 3, -1, 1))
sketch3.addConstraint(Sketcher.Constraint("Symmetric", 17, 3, 42, 3, -1, 1))
sketch3.addConstraint(Sketcher.Constraint("Symmetric", 21, 3, 49, 3, -1, 1))
sketch3.addConstraint(Sketcher.Constraint("Symmetric", 47, 3, 55, 3, -1, 1))
sketch3.addConstraint(Sketcher.Constraint("Symmetric", 9, 3, 17, 3, -2))
sketch3.addConstraint(Sketcher.Constraint("Symmetric", 2, 3, 21, 3, -2))
sketch3.addConstraint(Sketcher.Constraint("Symmetric", 26, 3, 47, 3, -2))
sketch3.addConstraint(Sketcher.Constraint("Symmetric", 14, 2, 36, 2, -1))
sketch3.addConstraint(Sketcher.Constraint("Horizontal", 2, 3, 9, 3))
sketch3.addConstraint(Sketcher.Constraint("Horizontal", 9, 3, 13, 3))
sketch3.addConstraint(Sketcher.Constraint("Horizontal", 3, 2, 10, 2))
sketch3.addConstraint(Sketcher.Constraint("Horizontal", 11, 2, 14, 2))
sketch3.addConstraint(Sketcher.Constraint("Horizontal", 15, 2, 18, 2))
sketch3.addConstraint(Sketcher.Constraint("Horizontal", 19, 2, 22, 2))
sketch3.addConstraint(Sketcher.Constraint("Horizontal", 31, 2, 32, 2))
sketch3.addConstraint(Sketcher.Constraint("Horizontal", 35, 2, 36, 2))
sketch3.addConstraint(Sketcher.Constraint("Horizontal", 39, 2, 40, 2))
sketch3.addConstraint(Sketcher.Constraint("Horizontal", 43, 2, 50, 2))
sketch3.addConstraint(Sketcher.Constraint("Vertical", 7, 2, 44, 2))
sketch3.addConstraint(Sketcher.Constraint("Vertical", 27, 2, 52, 2))
sketch3.addConstraint(Sketcher.Constraint("Equal", 7, 25))
sketch3.addConstraint(Sketcher.Constraint("Equal", 54, 1))
sketch3.addConstraint(Sketcher.Constraint("Radius", 2, Q("0.12 mm")))
sketch3.addConstraint(Sketcher.Constraint("DistanceX", 2, 3, -1, 1, Q("1 mm")))
sketch3.addConstraint(Sketcher.Constraint("DistanceX", 5, 1, 5, 2, Q("0.28 mm")))
sketch3.addConstraint(Sketcher.Constraint("DistanceX", 9, 3, -1, 1, Q("0.5 mm")))
sketch3.addConstraint(Sketcher.Constraint("DistanceY", -1, 1, 6, 3, Q("0.75 mm")))
sketch3.addConstraint(Sketcher.Constraint("DistanceY", -1, 1, 2, 3, Q("1.471 mm")))
sketch3.addConstraint(Sketcher.Constraint("DistanceX", 6, 3, -1, 1, Q("1.471 mm")))
pad2 = doc.addObject("PartDesign::Pad", "Pad001")
body.addObject(pad2)
pad2.Profile = sketch3
pad2.Type = "TwoLengths"
pad2.Length = 0.05
pad2.Length2 = 0.15

# Sketch on XZ plane
sketch4 = doc.addObject("Sketcher::SketchObject", "Sketch003")
body.addObject(sketch4)
sketch4.AttachmentSupport = (doc.XZ_Plane, [""])
sketch4.MapMode = "FlatFace"
sketch4.addGeometry(Part.LineSegment(App.Vector(-0.6, 1, 0), App.Vector(-1, 0.6, 0)), False)
sketch4.addGeometry(Part.LineSegment(App.Vector(-1, 0.6, 0), App.Vector(-1, 0.375, 0)), False)
sketch4.addGeometry(Part.LineSegment(App.Vector(-1, 0.375, 0), App.Vector(-1.75, 0.375, 0)), False)
sketch4.addGeometry(Part.LineSegment(App.Vector(-1.75, 0.375, 0), App.Vector(-1.75, 0.175, 0)), False)
sketch4.addGeometry(Part.LineSegment(App.Vector(-1.75, 0.175, 0), App.Vector(-1.46962, 0.175, 0)), False)
sketch4.addGeometry(Part.LineSegment(App.Vector(-1.46962, 0.175, 0), App.Vector(-1.46962, -0.175, 0)), False)
sketch4.addGeometry(Part.LineSegment(App.Vector(-1.46962, -0.175, 0), App.Vector(-1.75, -0.175, 0)), False)
sketch4.addGeometry(Part.LineSegment(App.Vector(-1.75, -0.175, 0), App.Vector(-1.75, -0.375, 0)), False)
sketch4.addGeometry(Part.LineSegment(App.Vector(-1.75, -0.375, 0), App.Vector(-1, -0.375, 0)), False)
sketch4.addGeometry(Part.LineSegment(App.Vector(-1, -0.375, 0), App.Vector(-1, -1, 0)), False)
sketch4.addGeometry(Part.LineSegment(App.Vector(-1, -1, 0), App.Vector(1, -1, 0)), False)
sketch4.addGeometry(Part.LineSegment(App.Vector(1, -1, 0), App.Vector(1, -0.375, 0)), False)
sketch4.addGeometry(Part.LineSegment(App.Vector(1, -0.375, 0), App.Vector(1.75, -0.375, 0)), False)
sketch4.addGeometry(Part.LineSegment(App.Vector(1.75, -0.375, 0), App.Vector(1.75, -0.175, 0)), False)
sketch4.addGeometry(Part.LineSegment(App.Vector(1.75, -0.175, 0), App.Vector(1.46962, -0.175, 0)), False)
sketch4.addGeometry(Part.LineSegment(App.Vector(1.46962, -0.175, 0), App.Vector(1.46962, 0.175, 0)), False)
sketch4.addGeometry(Part.LineSegment(App.Vector(1.46962, 0.175, 0), App.Vector(1.75, 0.175, 0)), False)
sketch4.addGeometry(Part.LineSegment(App.Vector(1.75, 0.175, 0), App.Vector(1.75, 0.375, 0)), False)
sketch4.addGeometry(Part.LineSegment(App.Vector(1.75, 0.375, 0), App.Vector(1, 0.375, 0)), False)
sketch4.addGeometry(Part.LineSegment(App.Vector(1, 0.375, 0), App.Vector(1, 1, 0)), False)
sketch4.addGeometry(Part.LineSegment(App.Vector(1, 1, 0), App.Vector(-0.6, 1, 0)), False)
sketch4.addConstraint(Sketcher.Constraint("Coincident", 0, 2, 1, 1))
sketch4.addConstraint(Sketcher.Constraint("Coincident", 1, 2, 2, 1))
sketch4.addConstraint(Sketcher.Constraint("Coincident", 2, 2, 3, 1))
sketch4.addConstraint(Sketcher.Constraint("Coincident", 3, 2, 4, 1))
sketch4.addConstraint(Sketcher.Constraint("Coincident", 4, 2, 5, 1))
sketch4.addConstraint(Sketcher.Constraint("Coincident", 5, 2, 6, 1))
sketch4.addConstraint(Sketcher.Constraint("Coincident", 6, 2, 7, 1))
sketch4.addConstraint(Sketcher.Constraint("Coincident", 7, 2, 8, 1))
sketch4.addConstraint(Sketcher.Constraint("Coincident", 8, 2, 9, 1))
sketch4.addConstraint(Sketcher.Constraint("Coincident", 9, 2, 10, 1))
sketch4.addConstraint(Sketcher.Constraint("Coincident", 10, 2, 11, 1))
sketch4.addConstraint(Sketcher.Constraint("Coincident", 11, 2, 12, 1))
sketch4.addConstraint(Sketcher.Constraint("Coincident", 12, 2, 13, 1))
sketch4.addConstraint(Sketcher.Constraint("Coincident", 13, 2, 14, 1))
sketch4.addConstraint(Sketcher.Constraint("Coincident", 14, 2, 15, 1))
sketch4.addConstraint(Sketcher.Constraint("Coincident", 15, 2, 16, 1))
sketch4.addConstraint(Sketcher.Constraint("Coincident", 16, 2, 17, 1))
sketch4.addConstraint(Sketcher.Constraint("Coincident", 17, 2, 18, 1))
sketch4.addConstraint(Sketcher.Constraint("Coincident", 18, 2, 19, 1))
sketch4.addConstraint(Sketcher.Constraint("Coincident", 19, 2, 20, 1))
sketch4.addConstraint(Sketcher.Constraint("Coincident", 20, 2, 0, 1))
sketch4.addConstraint(Sketcher.Constraint("Vertical", 1))
sketch4.addConstraint(Sketcher.Constraint("Horizontal", 2))
sketch4.addConstraint(Sketcher.Constraint("Vertical", 3))
sketch4.addConstraint(Sketcher.Constraint("Horizontal", 4))
sketch4.addConstraint(Sketcher.Constraint("Vertical", 5))
sketch4.addConstraint(Sketcher.Constraint("Horizontal", 6))
sketch4.addConstraint(Sketcher.Constraint("Vertical", 7))
sketch4.addConstraint(Sketcher.Constraint("Horizontal", 8))
sketch4.addConstraint(Sketcher.Constraint("Vertical", 9))
sketch4.addConstraint(Sketcher.Constraint("Horizontal", 10))
sketch4.addConstraint(Sketcher.Constraint("Vertical", 11))
sketch4.addConstraint(Sketcher.Constraint("Horizontal", 12))
sketch4.addConstraint(Sketcher.Constraint("Vertical", 13))
sketch4.addConstraint(Sketcher.Constraint("Horizontal", 14))
sketch4.addConstraint(Sketcher.Constraint("Vertical", 15))
sketch4.addConstraint(Sketcher.Constraint("Horizontal", 16))
sketch4.addConstraint(Sketcher.Constraint("Vertical", 17))
sketch4.addConstraint(Sketcher.Constraint("Horizontal", 18))
sketch4.addConstraint(Sketcher.Constraint("Vertical", 19))
sketch4.addConstraint(Sketcher.Constraint("Horizontal", 20))
sketch4.addConstraint(Sketcher.Constraint("Symmetric", 1, 2, 11, 2, -1, 1))
sketch4.addConstraint(Sketcher.Constraint("Symmetric", 3, 2, 13, 2, -1, 1))
sketch4.addConstraint(Sketcher.Constraint("Symmetric", 5, 2, 15, 2, -1, 1))
sketch4.addConstraint(Sketcher.Constraint("Symmetric", 7, 2, 17, 2, -1, 1))
sketch4.addConstraint(Sketcher.Constraint("Symmetric", 9, 2, 19, 2, -1, 1))
sketch4.addConstraint(Sketcher.Constraint("Symmetric", 8, 2, 11, 2, -2))
sketch4.addConstraint(Sketcher.Constraint("Symmetric", 6, 2, 13, 2, -2))
sketch4.addConstraint(Sketcher.Constraint("DistanceX", 10, 1, 10, 2, Q("2 mm")))
sketch4.addConstraint(Sketcher.Constraint("Angle", 0, Q("-135 deg")))
sketch4.addConstraint(Sketcher.Constraint("DistanceX", 20, 2, 20, 1, Q("1.6 mm")))
sketch4.addConstraint(Sketcher.Constraint("DistanceY", 3, 2, 3, 1, Q("0.2 mm")))
sketch4.addConstraint(Sketcher.Constraint("DistanceY", 9, 2, -1, 1, Q("1 mm")))
sketch4.addConstraint(Sketcher.Constraint("DistanceX", 2, 2, 2, 1, Q("0.75 mm")))
sketch4.addConstraint(Sketcher.Constraint("DistanceY", 5, 2, 5, 1, Q("0.35 mm")))
sketch4.addConstraint(Sketcher.Constraint("DistanceX", 4, 1, 4, 2, Q("0.28038 mm")))
pad3 = doc.addObject("PartDesign::Pad", "Pad002")
body.addObject(pad3)
pad3.Profile = sketch4
pad3.Length = 0.001

doc.recompute()
